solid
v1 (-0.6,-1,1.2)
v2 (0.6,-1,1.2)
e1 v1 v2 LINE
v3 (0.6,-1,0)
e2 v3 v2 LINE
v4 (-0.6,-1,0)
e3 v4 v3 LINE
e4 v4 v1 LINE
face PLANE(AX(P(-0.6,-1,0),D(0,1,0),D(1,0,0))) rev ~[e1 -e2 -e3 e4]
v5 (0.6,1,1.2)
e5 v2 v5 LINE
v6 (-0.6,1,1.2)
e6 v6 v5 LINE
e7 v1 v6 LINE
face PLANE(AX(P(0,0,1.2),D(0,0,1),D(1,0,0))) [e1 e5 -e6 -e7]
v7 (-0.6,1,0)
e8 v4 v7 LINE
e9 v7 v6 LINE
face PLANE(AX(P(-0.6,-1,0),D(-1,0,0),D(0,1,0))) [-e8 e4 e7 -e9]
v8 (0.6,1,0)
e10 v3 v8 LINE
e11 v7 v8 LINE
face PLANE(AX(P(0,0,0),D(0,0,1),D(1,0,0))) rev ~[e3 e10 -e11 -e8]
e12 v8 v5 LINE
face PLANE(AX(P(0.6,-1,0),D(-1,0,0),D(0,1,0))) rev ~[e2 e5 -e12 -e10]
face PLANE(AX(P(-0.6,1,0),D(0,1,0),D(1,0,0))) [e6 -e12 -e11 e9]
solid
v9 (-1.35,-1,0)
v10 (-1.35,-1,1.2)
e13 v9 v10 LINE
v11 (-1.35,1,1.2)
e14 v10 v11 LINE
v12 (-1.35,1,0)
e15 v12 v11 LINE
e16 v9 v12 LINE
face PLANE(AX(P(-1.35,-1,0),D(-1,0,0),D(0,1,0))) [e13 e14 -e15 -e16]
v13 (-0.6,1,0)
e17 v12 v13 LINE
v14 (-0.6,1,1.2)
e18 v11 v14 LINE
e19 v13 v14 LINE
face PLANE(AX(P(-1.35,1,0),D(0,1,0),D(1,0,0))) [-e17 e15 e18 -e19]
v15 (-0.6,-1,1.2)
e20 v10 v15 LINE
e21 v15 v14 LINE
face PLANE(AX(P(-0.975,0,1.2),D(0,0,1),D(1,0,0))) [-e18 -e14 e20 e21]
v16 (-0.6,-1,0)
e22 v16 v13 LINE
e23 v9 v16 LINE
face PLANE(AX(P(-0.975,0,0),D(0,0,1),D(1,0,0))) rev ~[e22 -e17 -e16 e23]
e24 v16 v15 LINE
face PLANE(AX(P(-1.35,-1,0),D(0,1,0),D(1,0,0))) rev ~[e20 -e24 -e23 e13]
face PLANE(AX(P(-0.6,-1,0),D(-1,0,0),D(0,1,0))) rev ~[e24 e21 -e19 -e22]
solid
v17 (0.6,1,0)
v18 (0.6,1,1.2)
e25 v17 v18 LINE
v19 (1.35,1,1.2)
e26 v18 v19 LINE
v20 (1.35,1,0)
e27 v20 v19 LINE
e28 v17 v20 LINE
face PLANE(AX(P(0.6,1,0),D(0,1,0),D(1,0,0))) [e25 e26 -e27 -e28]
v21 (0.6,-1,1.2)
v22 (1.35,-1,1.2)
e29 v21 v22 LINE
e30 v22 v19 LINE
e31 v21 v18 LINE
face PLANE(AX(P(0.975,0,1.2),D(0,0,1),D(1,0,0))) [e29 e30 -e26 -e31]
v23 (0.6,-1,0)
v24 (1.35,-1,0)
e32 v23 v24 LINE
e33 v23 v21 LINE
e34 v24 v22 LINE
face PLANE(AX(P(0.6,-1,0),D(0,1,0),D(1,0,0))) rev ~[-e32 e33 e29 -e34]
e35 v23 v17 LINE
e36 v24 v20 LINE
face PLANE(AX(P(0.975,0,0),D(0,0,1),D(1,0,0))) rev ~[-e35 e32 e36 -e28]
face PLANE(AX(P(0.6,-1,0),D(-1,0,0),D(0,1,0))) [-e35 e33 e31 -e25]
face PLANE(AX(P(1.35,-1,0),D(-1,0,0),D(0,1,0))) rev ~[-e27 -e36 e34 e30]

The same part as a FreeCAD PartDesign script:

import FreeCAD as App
import Part
import Sketcher

V = App.Vector


def add_polygon(sketch, points):
    """Adds a closed chain of lines whose ends are joined by coincident constraints."""
    first, n = sketch.GeometryCount, len(points)
    for a, b in zip(points, points[1:] + points[:1]):
        sketch.addGeometry(Part.LineSegment(App.Vector(*a, 0), App.Vector(*b, 0)), False)
    for i in range(n):
        sketch.addConstraint(Sketcher.Constraint("Coincident", first + i, 2, first + (i + 1) % n, 1))

doc = App.newDocument("Part")
body = doc.addObject("PartDesign::Body", "Body")

# Sketch on XY plane
sketch1 = body.newObject("Sketcher::SketchObject", "Sketch")
sketch1.AttachmentSupport = (doc.getObject("XY_Plane"), [""])
sketch1.MapMode = "FlatFace"
add_polygon(sketch1, [(-0.6, 1), (-0.6, -1), (0.6, -1), (0.6, 1)])  # lines 0-3
sketch1.addConstraint([
    Sketcher.Constraint("Vertical", 0),
    Sketcher.Constraint("Horizontal", 1),
    Sketcher.Constraint("Vertical", 2),
    Sketcher.Constraint("Horizontal", 3),
    Sketcher.Constraint("Symmetric", 0, 2, 2, 2, -1, 1),
    Sketcher.Constraint("DistanceY", 0, 2, 0, 1, 2.0),
    Sketcher.Constraint("DistanceX", 1, 1, 1, 2, 1.2),
])
pad1 = body.newObject("PartDesign::Pad", "Pad")
pad1.Profile = sketch1
pad1.Length = 1.2
body2 = doc.addObject("PartDesign::Body", "Body001")
body2.AllowCompound = True

# Sketch on XY plane
sketch2 = body2.newObject("Sketcher::SketchObject", "Sketch001")
sketch2.AttachmentSupport = (doc.getObject("XY_Plane001"), [""])
sketch2.MapMode = "FlatFace"
add_polygon(sketch2, [(-1.4, 1), (-1.4, -1), (-0.6, -1), (-0.6, 1)])  # lines 0-3
add_polygon(sketch2, [(0.6, 1), (0.6, -1), (1.4, -1), (1.4, 1)])  # lines 4-7
sketch2.addConstraint([
    Sketcher.Constraint("Vertical", 0),
    Sketcher.Constraint("Horizontal", 1),
    Sketcher.Constraint("Vertical", 2),
    Sketcher.Constraint("Horizontal", 3),
    Sketcher.Constraint("Vertical", 4),
    Sketcher.Constraint("Horizontal", 5),
    Sketcher.Constraint("Vertical", 6),
    Sketcher.Constraint("Horizontal", 7),
    Sketcher.Constraint("Symmetric", 2, 2, 4, 2, -1, 1),
    Sketcher.Constraint("Symmetric", 0, 2, 6, 2, -1, 1),
    Sketcher.Constraint("Horizontal", 1, 2, 4, 2),
    Sketcher.Constraint("DistanceY", 0, 2, 0, 1, 2.0),
    Sketcher.Constraint("DistanceX", 1, 1, 1, 2, 0.75),
    Sketcher.Constraint("DistanceX", 1, 2, -1, 1, 0.6),
])
pad2 = body2.newObject("PartDesign::Pad", "Pad001")
pad2.Profile = sketch2
pad2.Length = 1.2

doc.recompute()
